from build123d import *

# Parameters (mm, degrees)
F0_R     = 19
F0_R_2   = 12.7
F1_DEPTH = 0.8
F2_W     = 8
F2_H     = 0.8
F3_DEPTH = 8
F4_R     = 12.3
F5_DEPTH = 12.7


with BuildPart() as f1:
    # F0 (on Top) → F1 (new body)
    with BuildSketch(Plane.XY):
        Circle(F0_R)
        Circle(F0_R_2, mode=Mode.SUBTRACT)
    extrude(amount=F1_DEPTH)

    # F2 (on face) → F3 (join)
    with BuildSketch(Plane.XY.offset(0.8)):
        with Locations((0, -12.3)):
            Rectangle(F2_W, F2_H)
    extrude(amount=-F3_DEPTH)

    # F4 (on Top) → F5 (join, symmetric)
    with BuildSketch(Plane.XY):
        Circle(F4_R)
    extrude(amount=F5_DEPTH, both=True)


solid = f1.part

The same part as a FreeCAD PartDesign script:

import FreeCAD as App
import Part
import Sketcher

V = App.Vector
Q = App.Units.Quantity


def add_polygon(sketch, points):
    """Adds a closed chain of lines whose ends are joined by coincident constraints."""
    first, n = sketch.GeometryCount, len(points)
    for a, b in zip(points, points[1:] + points[:1]):
        sketch.addGeometry(Part.LineSegment(App.Vector(*a, 0), App.Vector(*b, 0)), False)
    for i in range(n):
        sketch.addConstraint(Sketcher.Constraint("Coincident", first + i, 2, first + (i + 1) % n, 1))

doc = App.newDocument("Part")
body = doc.addObject("PartDesign::Body", "Body")

# Sketch on XY plane
sketch1 = body.newObject("Sketcher::SketchObject", "Sketch")
sketch1.AttachmentSupport = (doc.getObject("XY_Plane"), [""])
sketch1.MapMode = "FlatFace"
sketch1.addGeometry([
    Part.Circle(V(0, 0, 0), V(0, 0, 1), 19),
    Part.Circle(V(0, 0, 0), V(0, 0, 1), 13),
], False)
sketch1.addConstraint([
    Sketcher.Constraint("Coincident", 0, 3, -1, 1),
    Sketcher.Constraint("Coincident", 1, 3, -1, 1),
    Sketcher.Constraint("Diameter", 0, Q("38 mm")),
    Sketcher.Constraint("Diameter", 1, Q("25.4 mm")),
])
pad1 = body.newObject("PartDesign::Pad", "Pad")
pad1.Profile = sketch1
pad1.Length = 0.8

# Sketch on XY plane
sketch2 = body.newObject("Sketcher::SketchObject", "Sketch001")
sketch2.AttachmentSupport = (doc.getObject("XY_Plane"), [""])
sketch2.MapMode = "FlatFace"
sketch2.AttachmentOffset = App.Placement(V(0, 0, 0.8), App.Rotation())
add_polygon(sketch2, [(-4, -11.9), (-4, -12.7), (4, -12.7), (4, -11.9)])  # lines 0-3
sketch2.addConstraint([
    Sketcher.Constraint("Vertical", 0),
    Sketcher.Constraint("Horizontal", 1),
    Sketcher.Constraint("Vertical", 2),
    Sketcher.Constraint("Horizontal", 3),
    Sketcher.Constraint("DistanceX", 1, 1, 1, 2, Q("8 mm")),
    Sketcher.Constraint("DistanceY", 0, 2, 0, 1, Q("0.8 mm")),
    Sketcher.Constraint("DistanceX", 0, 2, -1, 1, Q("4 mm")),
    Sketcher.Constraint("DistanceY", 0, 2, -1, 1, Q("12.7 mm")),
])
pad2 = body.newObject("PartDesign::Pad", "Pad001")
pad2.Profile = sketch2
pad2.Length = 8
pad2.Reversed = True

# Sketch on XY plane
sketch3 = body.newObject("Sketcher::SketchObject", "Sketch002")
sketch3.AttachmentSupport = (doc.getObject("XY_Plane"), [""])
sketch3.MapMode = "FlatFace"
sketch3.addGeometry(Part.Circle(V(0, 0, 0), V(0, 0, 1), 12), False)
sketch3.addConstraint([
    Sketcher.Constraint("Coincident", 0, 3, -1, 1),
    Sketcher.Constraint("Diameter", 0, Q("24.6 mm")),
])
pad3 = body.newObject("PartDesign::Pad", "Pad002")
pad3.Profile = sketch3
pad3.Length = 25.4
pad3.Midplane = True

doc.recompute()
